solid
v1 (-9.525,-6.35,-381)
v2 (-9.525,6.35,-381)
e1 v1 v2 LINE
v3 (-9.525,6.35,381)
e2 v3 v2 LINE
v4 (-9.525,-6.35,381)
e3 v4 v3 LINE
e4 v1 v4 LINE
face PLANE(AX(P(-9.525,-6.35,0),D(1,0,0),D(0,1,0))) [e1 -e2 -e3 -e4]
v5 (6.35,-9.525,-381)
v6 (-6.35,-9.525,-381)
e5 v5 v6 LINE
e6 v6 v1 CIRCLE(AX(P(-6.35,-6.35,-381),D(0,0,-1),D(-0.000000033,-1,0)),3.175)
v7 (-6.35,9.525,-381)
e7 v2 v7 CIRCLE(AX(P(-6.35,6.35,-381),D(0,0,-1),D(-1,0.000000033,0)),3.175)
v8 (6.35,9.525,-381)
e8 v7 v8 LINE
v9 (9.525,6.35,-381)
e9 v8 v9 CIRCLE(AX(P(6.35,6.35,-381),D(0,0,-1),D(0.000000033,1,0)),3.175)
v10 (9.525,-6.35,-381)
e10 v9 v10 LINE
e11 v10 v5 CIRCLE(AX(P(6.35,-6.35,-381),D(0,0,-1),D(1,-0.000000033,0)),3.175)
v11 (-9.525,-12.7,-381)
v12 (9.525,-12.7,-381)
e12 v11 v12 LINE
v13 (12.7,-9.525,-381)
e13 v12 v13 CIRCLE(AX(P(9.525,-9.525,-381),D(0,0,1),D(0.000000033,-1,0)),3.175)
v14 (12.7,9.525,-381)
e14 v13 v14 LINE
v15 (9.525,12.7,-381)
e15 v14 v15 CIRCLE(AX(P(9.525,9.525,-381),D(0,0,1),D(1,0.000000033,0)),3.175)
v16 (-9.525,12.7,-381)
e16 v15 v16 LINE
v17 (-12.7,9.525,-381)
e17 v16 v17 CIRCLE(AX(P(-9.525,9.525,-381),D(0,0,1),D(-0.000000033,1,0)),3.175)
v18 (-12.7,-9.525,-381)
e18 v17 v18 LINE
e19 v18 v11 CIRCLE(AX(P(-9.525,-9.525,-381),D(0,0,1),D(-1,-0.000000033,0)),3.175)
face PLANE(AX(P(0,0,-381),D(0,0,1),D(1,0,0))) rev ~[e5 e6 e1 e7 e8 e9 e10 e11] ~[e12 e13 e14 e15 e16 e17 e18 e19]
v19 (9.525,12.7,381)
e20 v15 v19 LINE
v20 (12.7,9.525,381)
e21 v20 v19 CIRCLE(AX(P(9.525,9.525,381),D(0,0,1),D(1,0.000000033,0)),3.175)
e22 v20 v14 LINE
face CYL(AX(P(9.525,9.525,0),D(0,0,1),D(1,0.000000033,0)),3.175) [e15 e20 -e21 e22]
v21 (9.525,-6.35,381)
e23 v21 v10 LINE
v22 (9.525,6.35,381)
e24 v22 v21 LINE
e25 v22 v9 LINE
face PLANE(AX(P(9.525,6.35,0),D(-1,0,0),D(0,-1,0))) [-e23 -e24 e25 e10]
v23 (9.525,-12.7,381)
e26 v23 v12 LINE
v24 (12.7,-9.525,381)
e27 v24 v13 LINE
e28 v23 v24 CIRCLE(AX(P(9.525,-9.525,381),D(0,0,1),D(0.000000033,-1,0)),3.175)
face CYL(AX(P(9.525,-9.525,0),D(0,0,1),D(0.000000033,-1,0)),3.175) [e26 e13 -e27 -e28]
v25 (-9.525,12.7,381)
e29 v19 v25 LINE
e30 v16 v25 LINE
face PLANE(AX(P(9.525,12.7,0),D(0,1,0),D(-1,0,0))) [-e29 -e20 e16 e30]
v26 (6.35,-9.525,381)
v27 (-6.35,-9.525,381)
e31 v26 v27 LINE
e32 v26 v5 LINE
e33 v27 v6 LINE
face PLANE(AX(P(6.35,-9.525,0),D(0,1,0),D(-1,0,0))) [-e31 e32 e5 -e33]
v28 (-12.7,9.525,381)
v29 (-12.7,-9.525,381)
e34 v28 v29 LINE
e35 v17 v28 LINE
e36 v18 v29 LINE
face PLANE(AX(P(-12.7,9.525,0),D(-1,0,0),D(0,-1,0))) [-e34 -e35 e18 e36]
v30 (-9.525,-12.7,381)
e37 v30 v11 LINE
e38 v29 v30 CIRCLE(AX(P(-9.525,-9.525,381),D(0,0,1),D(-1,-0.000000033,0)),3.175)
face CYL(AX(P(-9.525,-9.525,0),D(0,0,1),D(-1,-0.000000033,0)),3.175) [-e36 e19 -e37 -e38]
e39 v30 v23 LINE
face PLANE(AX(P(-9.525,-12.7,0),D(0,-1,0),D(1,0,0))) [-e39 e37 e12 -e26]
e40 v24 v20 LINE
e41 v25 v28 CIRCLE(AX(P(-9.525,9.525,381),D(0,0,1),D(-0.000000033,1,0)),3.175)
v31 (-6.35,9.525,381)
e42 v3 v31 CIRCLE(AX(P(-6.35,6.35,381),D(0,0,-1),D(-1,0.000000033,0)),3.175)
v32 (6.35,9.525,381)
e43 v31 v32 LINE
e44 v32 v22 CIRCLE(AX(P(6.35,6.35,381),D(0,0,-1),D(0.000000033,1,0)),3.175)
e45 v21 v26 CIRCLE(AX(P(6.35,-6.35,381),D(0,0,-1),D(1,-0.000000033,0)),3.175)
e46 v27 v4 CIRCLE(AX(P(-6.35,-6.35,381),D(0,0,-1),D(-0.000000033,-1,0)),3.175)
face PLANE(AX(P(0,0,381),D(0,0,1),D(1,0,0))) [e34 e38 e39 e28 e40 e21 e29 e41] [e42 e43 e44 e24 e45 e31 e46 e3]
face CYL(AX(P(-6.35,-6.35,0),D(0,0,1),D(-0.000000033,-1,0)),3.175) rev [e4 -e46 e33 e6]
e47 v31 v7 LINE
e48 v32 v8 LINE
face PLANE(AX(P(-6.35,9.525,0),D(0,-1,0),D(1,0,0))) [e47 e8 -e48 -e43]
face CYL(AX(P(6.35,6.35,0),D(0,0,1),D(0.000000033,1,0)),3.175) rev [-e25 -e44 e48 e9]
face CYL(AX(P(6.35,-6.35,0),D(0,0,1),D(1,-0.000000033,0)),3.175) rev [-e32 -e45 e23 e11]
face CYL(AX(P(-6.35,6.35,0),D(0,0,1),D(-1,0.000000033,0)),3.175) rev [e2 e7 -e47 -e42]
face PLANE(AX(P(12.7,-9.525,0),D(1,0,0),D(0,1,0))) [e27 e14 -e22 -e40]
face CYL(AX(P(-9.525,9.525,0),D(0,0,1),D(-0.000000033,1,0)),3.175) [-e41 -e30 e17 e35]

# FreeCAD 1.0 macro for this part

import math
import FreeCAD as App
import Part
import Sketcher
Q = App.Units.Quantity

doc = App.newDocument("Part")
body = doc.addObject("PartDesign::Body", "Body")

# Sketch on XY plane
sketch1 = doc.addObject("Sketcher::SketchObject", "Sketch")
body.addObject(sketch1)
sketch1.AttachmentSupport = (doc.XY_Plane, [""])
sketch1.MapMode = "FlatFace"
sketch1.addGeometry(Part.ArcOfCircle(Part.Circle(App.Vector(9.5, 9.5, 0), App.Vector(0, 0, 1), 3.2), math.radians(0), math.radians(90)), False)
sketch1.addGeometry(Part.LineSegment(App.Vector(9.5, 12.7, 0), App.Vector(-9.5, 12.7, 0)), False)
sketch1.addGeometry(Part.ArcOfCircle(Part.Circle(App.Vector(-9.5, 9.5, 0), App.Vector(0, 0, 1), 3.2), math.radians(90), math.radians(180)), False)
sketch1.addGeometry(Part.LineSegment(App.Vector(-12.7, 9.5, 0), App.Vector(-12.7, -9.5, 0)), False)
sketch1.addGeometry(Part.ArcOfCircle(Part.Circle(App.Vector(-9.5, -9.5, 0), App.Vector(0, 0, 1), 3.2), math.radians(-180), math.radians(-90)), False)
sketch1.addGeometry(Part.LineSegment(App.Vector(-9.5, -12.7, 0), App.Vector(9.5, -12.7, 0)), False)
sketch1.addGeometry(Part.ArcOfCircle(Part.Circle(App.Vector(9.5, -9.5, 0), App.Vector(0, 0, 1), 3.2), math.radians(-90), math.radians(0)), False)
sketch1.addGeometry(Part.LineSegment(App.Vector(12.7, -9.5, 0), App.Vector(12.7, 9.5, 0)), False)
sketch1.addGeometry(Part.ArcOfCircle(Part.Circle(App.Vector(-6.3, -6.3, 0), App.Vector(0, 0, 1), 3.2), math.radians(-180), math.radians(-90)), False)
sketch1.addGeometry(Part.LineSegment(App.Vector(-9.5, -6.3, 0), App.Vector(-9.5, 6.3, 0)), False)
sketch1.addGeometry(Part.ArcOfCircle(Part.Circle(App.Vector(-6.3, 6.3, 0), App.Vector(0, 0, 1), 3.2), math.radians(90), math.radians(180)), False)
sketch1.addGeometry(Part.LineSegment(App.Vector(-6.3, 9.5, 0), App.Vector(6.3, 9.5, 0)), False)
sketch1.addGeometry(Part.ArcOfCircle(Part.Circle(App.Vector(6.3, 6.3, 0), App.Vector(0, 0, 1), 3.2), math.radians(0), math.radians(90)), False)
sketch1.addGeometry(Part.LineSegment(App.Vector(9.5, 6.3, 0), App.Vector(9.5, -6.3, 0)), False)
sketch1.addGeometry(Part.ArcOfCircle(Part.Circle(App.Vector(6.3, -6.3, 0), App.Vector(0, 0, 1), 3.2), math.radians(-90), math.radians(0)), False)
sketch1.addGeometry(Part.LineSegment(App.Vector(6.3, -9.5, 0), App.Vector(-6.3, -9.5, 0)), False)
sketch1.addConstraint(Sketcher.Constraint("Tangent", 0, 2, 1, 1))
sketch1.addConstraint(Sketcher.Constraint("Tangent", 1, 2, 2, 1))
sketch1.addConstraint(Sketcher.Constraint("Tangent", 2, 2, 3, 1))
sketch1.addConstraint(Sketcher.Constraint("Tangent", 3, 2, 4, 1))
sketch1.addConstraint(Sketcher.Constraint("Tangent", 4, 2, 5, 1))
sketch1.addConstraint(Sketcher.Constraint("Tangent", 5, 2, 6, 1))
sketch1.addConstraint(Sketcher.Constraint("Tangent", 6, 2, 7, 1))
sketch1.addConstraint(Sketcher.Constraint("Tangent", 7, 2, 0, 1))
sketch1.addConstraint(Sketcher.Constraint("Tangent", 8, 1, 9, 1))
sketch1.addConstraint(Sketcher.Constraint("Tangent", 9, 2, 10, 2))
sketch1.addConstraint(Sketcher.Constraint("Tangent", 10, 1, 11, 1))
sketch1.addConstraint(Sketcher.Constraint("Tangent", 11, 2, 12, 2))
sketch1.addConstraint(Sketcher.Constraint("Tangent", 12, 1, 13, 1))
sketch1.addConstraint(Sketcher.Constraint("Tangent", 13, 2, 14, 2))
sketch1.addConstraint(Sketcher.Constraint("Tangent", 14, 1, 15, 1))
sketch1.addConstraint(Sketcher.Constraint("Tangent", 15, 2, 8, 2))
sketch1.addConstraint(Sketcher.Constraint("Horizontal", 1))
sketch1.addConstraint(Sketcher.Constraint("Vertical", 3))
sketch1.addConstraint(Sketcher.Constraint("Horizontal", 5))
sketch1.addConstraint(Sketcher.Constraint("Vertical", 7))
sketch1.addConstraint(Sketcher.Constraint("Vertical", 9))
sketch1.addConstraint(Sketcher.Constraint("Horizontal", 11))
sketch1.addConstraint(Sketcher.Constraint("Vertical", 13))
sketch1.addConstraint(Sketcher.Constraint("Horizontal", 15))
sketch1.addConstraint(Sketcher.Constraint("Equal", 0, 2))
sketch1.addConstraint(Sketcher.Constraint("Equal", 2, 4))
sketch1.addConstraint(Sketcher.Constraint("Equal", 4, 6))
sketch1.addConstraint(Sketcher.Constraint("Equal", 6, 8))
sketch1.addConstraint(Sketcher.Constraint("Equal", 8, 10))
sketch1.addConstraint(Sketcher.Constraint("Equal", 10, 12))
sketch1.addConstraint(Sketcher.Constraint("Equal", 12, 14))
sketch1.addConstraint(Sketcher.Constraint("Symmetric", 0, 3, 4, 3, -1, 1))
sketch1.addConstraint(Sketcher.Constraint("Symmetric", 8, 3, 12, 3, -1, 1))
sketch1.addConstraint(Sketcher.Constraint("Horizontal", 7, 2, 10, 1))
sketch1.addConstraint(Sketcher.Constraint("Vertical", 4, 2, 8, 1))
sketch1.addConstraint(Sketcher.Constraint("Equal", 5, 3))
sketch1.addConstraint(Sketcher.Constraint("DistanceX", 11, 1, 11, 2, Q("0.5 in")))
sketch1.addConstraint(Sketcher.Constraint("Radius", 0, Q("0.125 in")))
pad1 = doc.addObject("PartDesign::Pad", "Pad")
body.addObject(pad1)
pad1.Profile = sketch1
pad1.Type = "TwoLengths"
pad1.Length = Q("15 in")
pad1.Length2 = Q("15 in")

doc.recompute()
